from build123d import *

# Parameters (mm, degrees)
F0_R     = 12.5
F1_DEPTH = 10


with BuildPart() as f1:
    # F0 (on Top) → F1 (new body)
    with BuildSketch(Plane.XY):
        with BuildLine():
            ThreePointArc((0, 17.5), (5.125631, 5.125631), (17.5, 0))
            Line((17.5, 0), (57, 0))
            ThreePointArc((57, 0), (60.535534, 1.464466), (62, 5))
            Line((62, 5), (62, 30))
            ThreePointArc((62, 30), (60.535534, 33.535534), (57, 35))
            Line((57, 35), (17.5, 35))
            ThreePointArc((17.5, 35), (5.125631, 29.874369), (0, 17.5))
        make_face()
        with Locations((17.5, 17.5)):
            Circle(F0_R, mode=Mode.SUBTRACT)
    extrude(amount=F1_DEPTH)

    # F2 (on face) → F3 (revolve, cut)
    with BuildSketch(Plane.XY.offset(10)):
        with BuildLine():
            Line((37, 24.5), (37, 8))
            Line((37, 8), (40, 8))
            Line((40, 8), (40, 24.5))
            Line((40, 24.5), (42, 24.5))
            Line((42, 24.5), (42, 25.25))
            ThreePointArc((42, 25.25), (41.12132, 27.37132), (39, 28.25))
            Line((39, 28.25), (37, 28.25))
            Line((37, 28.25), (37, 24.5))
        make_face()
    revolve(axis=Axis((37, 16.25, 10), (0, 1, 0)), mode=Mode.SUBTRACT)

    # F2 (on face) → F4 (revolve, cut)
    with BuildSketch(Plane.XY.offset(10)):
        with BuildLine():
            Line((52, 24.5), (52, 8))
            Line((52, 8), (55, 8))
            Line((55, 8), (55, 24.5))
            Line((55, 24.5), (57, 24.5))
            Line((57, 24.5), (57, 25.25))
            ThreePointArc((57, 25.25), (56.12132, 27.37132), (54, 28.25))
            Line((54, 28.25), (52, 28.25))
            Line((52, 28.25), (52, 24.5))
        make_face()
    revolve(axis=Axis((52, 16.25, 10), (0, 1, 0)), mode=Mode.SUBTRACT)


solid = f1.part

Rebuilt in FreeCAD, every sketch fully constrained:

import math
import FreeCAD as App
import Part
import Sketcher
from FreeCAD import Vector

doc = App.newDocument("Part")
params = doc.addObject("Spreadsheet::Sheet", "Params")
for row, (alias, value) in enumerate([
    ("sketch1_diameter", "25 mm"),
    ("sketch1_radius", "5 mm"),
    ("sketch1_radius2", "17.499999 mm"),
    ("sketch1_width", "39.5 mm"),
    ("pad1_length", "10 mm"),
    ("sketch2_radius", "3.000001 mm"),
    ("sketch2_width", "2 mm"),
    ("sketch2_height", "16.5 mm"),
    ("sketch2_height2", "0.75 mm"),
    ("groove_angle", "360 deg"),
    ("sketch3_radius", "3.000001 mm"),
    ("sketch3_width", "2 mm"),
    ("sketch3_height", "16.5 mm"),
    ("sketch3_height2", "0.75 mm"),
    ("groove2_angle", "360 deg"),
], start=1):
    params.set(f"A{row}", alias)
    params.set(f"B{row}", "=" + value)
    params.setAlias(f"B{row}", alias)

body = doc.addObject("PartDesign::Body", "Body")

# Sketch on XY plane
sketch1 = body.newObject("Sketcher::SketchObject", "Sketch")
sketch1.AttachmentSupport = (doc.getObject("XY_Plane"), [""])
sketch1.MapMode = "FlatFace"
sketch1.addGeometry(Part.ArcOfCircle(Part.Circle(Vector(17.5, 17.5, 0), Vector(0, 0, 1), 17.5), math.radians(180), math.radians(270)), False)
sketch1.addGeometry(Part.LineSegment(Vector(17.5, 0, 0), Vector(57, 0, 0)), False)
sketch1.addGeometry(Part.ArcOfCircle(Part.Circle(Vector(57, 5, 0), Vector(0, 0, 1), 5), math.radians(-90), math.radians(0)), False)
sketch1.addGeometry(Part.LineSegment(Vector(62, 5, 0), Vector(62, 30, 0)), False)
sketch1.addGeometry(Part.ArcOfCircle(Part.Circle(Vector(57, 30, 0), Vector(0, 0, 1), 5), math.radians(0), math.radians(90)), False)
sketch1.addGeometry(Part.LineSegment(Vector(57, 35, 0), Vector(17.5, 35, 0)), False)
sketch1.addGeometry(Part.ArcOfCircle(Part.Circle(Vector(17.5, 17.5, 0), Vector(0, 0, 1), 17.5), math.radians(90), math.radians(180)), False)
sketch1.addGeometry(Part.Circle(Vector(17.5, 17.5, 0), Vector(0, 0, 1), 12.5), False)
sketch1.addConstraint(Sketcher.Constraint("Tangent", 0, 2, 1, 1))
sketch1.addConstraint(Sketcher.Constraint("Tangent", 1, 2, 2, 1))
sketch1.addConstraint(Sketcher.Constraint("Tangent", 2, 2, 3, 1))
sketch1.addConstraint(Sketcher.Constraint("Tangent", 3, 2, 4, 1))
sketch1.addConstraint(Sketcher.Constraint("Tangent", 4, 2, 5, 1))
sketch1.addConstraint(Sketcher.Constraint("Tangent", 5, 2, 6, 1))
sketch1.addConstraint(Sketcher.Constraint("Tangent", 6, 2, 0, 1))
sketch1.addConstraint(Sketcher.Constraint("Horizontal", 1))
sketch1.addConstraint(Sketcher.Constraint("Vertical", 3))
sketch1.addConstraint(Sketcher.Constraint("Horizontal", 5))
sketch1.addConstraint(Sketcher.Constraint("Coincident", 7, 3, 0, 3))
sketch1.addConstraint(Sketcher.Constraint("Equal", 2, 4))
sketch1.addConstraint(Sketcher.Constraint("Equal", 0, 6))
sketch1.addConstraint(Sketcher.Constraint("PointOnObject", 0, 2, -1))
sketch1.addConstraint(Sketcher.Constraint("PointOnObject", 6, 2, -2))
sketch1.addConstraint(Sketcher.Constraint("Horizontal", 7, 3, 6, 2))
sketch1.addConstraint(Sketcher.Constraint("Diameter", 7, 25.0))
sketch1.addConstraint(Sketcher.Constraint("Radius", 2, 5.0))
sketch1.addConstraint(Sketcher.Constraint("Radius", 0, 17.499999))
sketch1.addConstraint(Sketcher.Constraint("DistanceX", 1, 1, 1, 2, 39.5))
sketch1.setExpression("Constraints[16]", "Params.sketch1_diameter")
sketch1.setExpression("Constraints[17]", "Params.sketch1_radius")
sketch1.setExpression("Constraints[18]", "Params.sketch1_radius2")
sketch1.setExpression("Constraints[19]", "Params.sketch1_width")
pad1 = body.newObject("PartDesign::Pad", "Pad")
pad1.Profile = sketch1
pad1.setExpression("Length", "Params.pad1_length")

# Sketch on XY plane
sketch2 = body.newObject("Sketcher::SketchObject", "Sketch001")
sketch2.AttachmentSupport = (doc.getObject("XY_Plane"), [""])
sketch2.MapMode = "FlatFace"
sketch2.AttachmentOffset = App.Placement(Vector(0, 0, 10), App.Rotation())
sketch2.addGeometry(Part.LineSegment(Vector(37, 8, 0), Vector(40, 8, 0)), False)
sketch2.addGeometry(Part.LineSegment(Vector(40, 8, 0), Vector(40, 24.5, 0)), False)
sketch2.addGeometry(Part.LineSegment(Vector(40, 24.5, 0), Vector(42, 24.5, 0)), False)
sketch2.addGeometry(Part.LineSegment(Vector(42, 24.5, 0), Vector(42, 25.2, 0)), False)
sketch2.addGeometry(Part.ArcOfCircle(Part.Circle(Vector(39, 25.2, 0), Vector(0, 0, 1), 3), math.radians(0), math.radians(90)), False)
sketch2.addGeometry(Part.LineSegment(Vector(39, 28.2, 0), Vector(37, 28.2, 0)), False)
sketch2.addGeometry(Part.LineSegment(Vector(37, 28.2, 0), Vector(37, 8, 0)), False)
sketch2.addGeometry(Part.LineSegment(Vector(37, 8, 0), Vector(37, 28.2, 0)), True)  # axis
sketch2.addConstraint(Sketcher.Constraint("Coincident", 0, 2, 1, 1))
sketch2.addConstraint(Sketcher.Constraint("Coincident", 1, 2, 2, 1))
sketch2.addConstraint(Sketcher.Constraint("Coincident", 2, 2, 3, 1))
sketch2.addConstraint(Sketcher.Constraint("Tangent", 3, 2, 4, 1))
sketch2.addConstraint(Sketcher.Constraint("Tangent", 4, 2, 5, 1))
sketch2.addConstraint(Sketcher.Constraint("Coincident", 5, 2, 6, 1))
sketch2.addConstraint(Sketcher.Constraint("Coincident", 6, 2, 0, 1))
sketch2.addConstraint(Sketcher.Constraint("Horizontal", 0))
sketch2.addConstraint(Sketcher.Constraint("Vertical", 1))
sketch2.addConstraint(Sketcher.Constraint("Horizontal", 2))
sketch2.addConstraint(Sketcher.Constraint("Vertical", 3))
sketch2.addConstraint(Sketcher.Constraint("Horizontal", 5))
sketch2.addConstraint(Sketcher.Constraint("Vertical", 6))
sketch2.addConstraint(Sketcher.Constraint("Vertical", 7))
sketch2.addConstraint(Sketcher.Constraint("Coincident", 7, 1, 6, 2))
sketch2.addConstraint(Sketcher.Constraint("Horizontal", 4, 2, 7, 2))
sketch2.addConstraint(Sketcher.Constraint("Equal", 2, 5))
sketch2.addConstraint(Sketcher.Constraint("Radius", 4, 3.000001))
sketch2.addConstraint(Sketcher.Constraint("DistanceX", 2, 1, 2, 2, 2.0))
sketch2.addConstraint(Sketcher.Constraint("DistanceY", 1, 1, 1, 2, 16.5))
sketch2.addConstraint(Sketcher.Constraint("DistanceX", -1, 1, 4, 3, 38.999999))
sketch2.addConstraint(Sketcher.Constraint("DistanceY", -1, 1, 0, 2, 8.0))
sketch2.addConstraint(Sketcher.Constraint("DistanceY", 3, 1, 3, 2, 0.75))
sketch2.setExpression("Constraints[17]", "Params.sketch2_radius")
sketch2.setExpression("Constraints[18]", "Params.sketch2_width")
sketch2.setExpression("Constraints[19]", "Params.sketch2_height")
sketch2.setExpression("Constraints[22]", "Params.sketch2_height2")
groove = body.newObject("PartDesign::Groove", "Groove")
groove.Profile = sketch2
groove.ReferenceAxis = (sketch2, ["Axis0"])
groove.setExpression("Angle", "Params.groove_angle")

# Sketch on XY plane
sketch3 = body.newObject("Sketcher::SketchObject", "Sketch002")
sketch3.AttachmentSupport = (doc.getObject("XY_Plane"), [""])
sketch3.MapMode = "FlatFace"
sketch3.AttachmentOffset = App.Placement(Vector(0, 0, 10), App.Rotation())
sketch3.addGeometry(Part.LineSegment(Vector(52, 8, 0), Vector(55, 8, 0)), False)
sketch3.addGeometry(Part.LineSegment(Vector(55, 8, 0), Vector(55, 24.5, 0)), False)
sketch3.addGeometry(Part.LineSegment(Vector(55, 24.5, 0), Vector(57, 24.5, 0)), False)
sketch3.addGeometry(Part.LineSegment(Vector(57, 24.5, 0), Vector(57, 25.2, 0)), False)
sketch3.addGeometry(Part.ArcOfCircle(Part.Circle(Vector(54, 25.2, 0), Vector(0, 0, 1), 3), math.radians(0), math.radians(90)), False)
sketch3.addGeometry(Part.LineSegment(Vector(54, 28.2, 0), Vector(52, 28.2, 0)), False)
sketch3.addGeometry(Part.LineSegment(Vector(52, 28.2, 0), Vector(52, 8, 0)), False)
sketch3.addGeometry(Part.LineSegment(Vector(52, 8, 0), Vector(52, 28.2, 0)), True)  # axis
sketch3.addConstraint(Sketcher.Constraint("Coincident", 0, 2, 1, 1))
sketch3.addConstraint(Sketcher.Constraint("Coincident", 1, 2, 2, 1))
sketch3.addConstraint(Sketcher.Constraint("Coincident", 2, 2, 3, 1))
sketch3.addConstraint(Sketcher.Constraint("Tangent", 3, 2, 4, 1))
sketch3.addConstraint(Sketcher.Constraint("Tangent", 4, 2, 5, 1))
sketch3.addConstraint(Sketcher.Constraint("Coincident", 5, 2, 6, 1))
sketch3.addConstraint(Sketcher.Constraint("Coincident", 6, 2, 0, 1))
sketch3.addConstraint(Sketcher.Constraint("Horizontal", 0))
sketch3.addConstraint(Sketcher.Constraint("Vertical", 1))
sketch3.addConstraint(Sketcher.Constraint("Horizontal", 2))
sketch3.addConstraint(Sketcher.Constraint("Vertical", 3))
sketch3.addConstraint(Sketcher.Constraint("Horizontal", 5))
sketch3.addConstraint(Sketcher.Constraint("Vertical", 6))
sketch3.addConstraint(Sketcher.Constraint("Vertical", 7))
sketch3.addConstraint(Sketcher.Constraint("Coincident", 7, 1, 6, 2))
sketch3.addConstraint(Sketcher.Constraint("Horizontal", 4, 2, 7, 2))
sketch3.addConstraint(Sketcher.Constraint("Equal", 2, 5))
sketch3.addConstraint(Sketcher.Constraint("Radius", 4, 3.000001))
sketch3.addConstraint(Sketcher.Constraint("DistanceX", 2, 1, 2, 2, 2.0))
sketch3.addConstraint(Sketcher.Constraint("DistanceY", 1, 1, 1, 2, 16.5))
sketch3.addConstraint(Sketcher.Constraint("DistanceX", -1, 1, 4, 3, 53.999999))
sketch3.addConstraint(Sketcher.Constraint("DistanceY", -1, 1, 0, 2, 8.0))
sketch3.addConstraint(Sketcher.Constraint("DistanceY", 3, 1, 3, 2, 0.75))
sketch3.setExpression("Constraints[17]", "Params.sketch3_radius")
sketch3.setExpression("Constraints[18]", "Params.sketch3_width")
sketch3.setExpression("Constraints[19]", "Params.sketch3_height")
sketch3.setExpression("Constraints[22]", "Params.sketch3_height2")
groove2 = body.newObject("PartDesign::Groove", "Groove001")
groove2.Profile = sketch3
groove2.ReferenceAxis = (sketch3, ["Axis0"])
groove2.setExpression("Angle", "Params.groove2_angle")

doc.recompute()
